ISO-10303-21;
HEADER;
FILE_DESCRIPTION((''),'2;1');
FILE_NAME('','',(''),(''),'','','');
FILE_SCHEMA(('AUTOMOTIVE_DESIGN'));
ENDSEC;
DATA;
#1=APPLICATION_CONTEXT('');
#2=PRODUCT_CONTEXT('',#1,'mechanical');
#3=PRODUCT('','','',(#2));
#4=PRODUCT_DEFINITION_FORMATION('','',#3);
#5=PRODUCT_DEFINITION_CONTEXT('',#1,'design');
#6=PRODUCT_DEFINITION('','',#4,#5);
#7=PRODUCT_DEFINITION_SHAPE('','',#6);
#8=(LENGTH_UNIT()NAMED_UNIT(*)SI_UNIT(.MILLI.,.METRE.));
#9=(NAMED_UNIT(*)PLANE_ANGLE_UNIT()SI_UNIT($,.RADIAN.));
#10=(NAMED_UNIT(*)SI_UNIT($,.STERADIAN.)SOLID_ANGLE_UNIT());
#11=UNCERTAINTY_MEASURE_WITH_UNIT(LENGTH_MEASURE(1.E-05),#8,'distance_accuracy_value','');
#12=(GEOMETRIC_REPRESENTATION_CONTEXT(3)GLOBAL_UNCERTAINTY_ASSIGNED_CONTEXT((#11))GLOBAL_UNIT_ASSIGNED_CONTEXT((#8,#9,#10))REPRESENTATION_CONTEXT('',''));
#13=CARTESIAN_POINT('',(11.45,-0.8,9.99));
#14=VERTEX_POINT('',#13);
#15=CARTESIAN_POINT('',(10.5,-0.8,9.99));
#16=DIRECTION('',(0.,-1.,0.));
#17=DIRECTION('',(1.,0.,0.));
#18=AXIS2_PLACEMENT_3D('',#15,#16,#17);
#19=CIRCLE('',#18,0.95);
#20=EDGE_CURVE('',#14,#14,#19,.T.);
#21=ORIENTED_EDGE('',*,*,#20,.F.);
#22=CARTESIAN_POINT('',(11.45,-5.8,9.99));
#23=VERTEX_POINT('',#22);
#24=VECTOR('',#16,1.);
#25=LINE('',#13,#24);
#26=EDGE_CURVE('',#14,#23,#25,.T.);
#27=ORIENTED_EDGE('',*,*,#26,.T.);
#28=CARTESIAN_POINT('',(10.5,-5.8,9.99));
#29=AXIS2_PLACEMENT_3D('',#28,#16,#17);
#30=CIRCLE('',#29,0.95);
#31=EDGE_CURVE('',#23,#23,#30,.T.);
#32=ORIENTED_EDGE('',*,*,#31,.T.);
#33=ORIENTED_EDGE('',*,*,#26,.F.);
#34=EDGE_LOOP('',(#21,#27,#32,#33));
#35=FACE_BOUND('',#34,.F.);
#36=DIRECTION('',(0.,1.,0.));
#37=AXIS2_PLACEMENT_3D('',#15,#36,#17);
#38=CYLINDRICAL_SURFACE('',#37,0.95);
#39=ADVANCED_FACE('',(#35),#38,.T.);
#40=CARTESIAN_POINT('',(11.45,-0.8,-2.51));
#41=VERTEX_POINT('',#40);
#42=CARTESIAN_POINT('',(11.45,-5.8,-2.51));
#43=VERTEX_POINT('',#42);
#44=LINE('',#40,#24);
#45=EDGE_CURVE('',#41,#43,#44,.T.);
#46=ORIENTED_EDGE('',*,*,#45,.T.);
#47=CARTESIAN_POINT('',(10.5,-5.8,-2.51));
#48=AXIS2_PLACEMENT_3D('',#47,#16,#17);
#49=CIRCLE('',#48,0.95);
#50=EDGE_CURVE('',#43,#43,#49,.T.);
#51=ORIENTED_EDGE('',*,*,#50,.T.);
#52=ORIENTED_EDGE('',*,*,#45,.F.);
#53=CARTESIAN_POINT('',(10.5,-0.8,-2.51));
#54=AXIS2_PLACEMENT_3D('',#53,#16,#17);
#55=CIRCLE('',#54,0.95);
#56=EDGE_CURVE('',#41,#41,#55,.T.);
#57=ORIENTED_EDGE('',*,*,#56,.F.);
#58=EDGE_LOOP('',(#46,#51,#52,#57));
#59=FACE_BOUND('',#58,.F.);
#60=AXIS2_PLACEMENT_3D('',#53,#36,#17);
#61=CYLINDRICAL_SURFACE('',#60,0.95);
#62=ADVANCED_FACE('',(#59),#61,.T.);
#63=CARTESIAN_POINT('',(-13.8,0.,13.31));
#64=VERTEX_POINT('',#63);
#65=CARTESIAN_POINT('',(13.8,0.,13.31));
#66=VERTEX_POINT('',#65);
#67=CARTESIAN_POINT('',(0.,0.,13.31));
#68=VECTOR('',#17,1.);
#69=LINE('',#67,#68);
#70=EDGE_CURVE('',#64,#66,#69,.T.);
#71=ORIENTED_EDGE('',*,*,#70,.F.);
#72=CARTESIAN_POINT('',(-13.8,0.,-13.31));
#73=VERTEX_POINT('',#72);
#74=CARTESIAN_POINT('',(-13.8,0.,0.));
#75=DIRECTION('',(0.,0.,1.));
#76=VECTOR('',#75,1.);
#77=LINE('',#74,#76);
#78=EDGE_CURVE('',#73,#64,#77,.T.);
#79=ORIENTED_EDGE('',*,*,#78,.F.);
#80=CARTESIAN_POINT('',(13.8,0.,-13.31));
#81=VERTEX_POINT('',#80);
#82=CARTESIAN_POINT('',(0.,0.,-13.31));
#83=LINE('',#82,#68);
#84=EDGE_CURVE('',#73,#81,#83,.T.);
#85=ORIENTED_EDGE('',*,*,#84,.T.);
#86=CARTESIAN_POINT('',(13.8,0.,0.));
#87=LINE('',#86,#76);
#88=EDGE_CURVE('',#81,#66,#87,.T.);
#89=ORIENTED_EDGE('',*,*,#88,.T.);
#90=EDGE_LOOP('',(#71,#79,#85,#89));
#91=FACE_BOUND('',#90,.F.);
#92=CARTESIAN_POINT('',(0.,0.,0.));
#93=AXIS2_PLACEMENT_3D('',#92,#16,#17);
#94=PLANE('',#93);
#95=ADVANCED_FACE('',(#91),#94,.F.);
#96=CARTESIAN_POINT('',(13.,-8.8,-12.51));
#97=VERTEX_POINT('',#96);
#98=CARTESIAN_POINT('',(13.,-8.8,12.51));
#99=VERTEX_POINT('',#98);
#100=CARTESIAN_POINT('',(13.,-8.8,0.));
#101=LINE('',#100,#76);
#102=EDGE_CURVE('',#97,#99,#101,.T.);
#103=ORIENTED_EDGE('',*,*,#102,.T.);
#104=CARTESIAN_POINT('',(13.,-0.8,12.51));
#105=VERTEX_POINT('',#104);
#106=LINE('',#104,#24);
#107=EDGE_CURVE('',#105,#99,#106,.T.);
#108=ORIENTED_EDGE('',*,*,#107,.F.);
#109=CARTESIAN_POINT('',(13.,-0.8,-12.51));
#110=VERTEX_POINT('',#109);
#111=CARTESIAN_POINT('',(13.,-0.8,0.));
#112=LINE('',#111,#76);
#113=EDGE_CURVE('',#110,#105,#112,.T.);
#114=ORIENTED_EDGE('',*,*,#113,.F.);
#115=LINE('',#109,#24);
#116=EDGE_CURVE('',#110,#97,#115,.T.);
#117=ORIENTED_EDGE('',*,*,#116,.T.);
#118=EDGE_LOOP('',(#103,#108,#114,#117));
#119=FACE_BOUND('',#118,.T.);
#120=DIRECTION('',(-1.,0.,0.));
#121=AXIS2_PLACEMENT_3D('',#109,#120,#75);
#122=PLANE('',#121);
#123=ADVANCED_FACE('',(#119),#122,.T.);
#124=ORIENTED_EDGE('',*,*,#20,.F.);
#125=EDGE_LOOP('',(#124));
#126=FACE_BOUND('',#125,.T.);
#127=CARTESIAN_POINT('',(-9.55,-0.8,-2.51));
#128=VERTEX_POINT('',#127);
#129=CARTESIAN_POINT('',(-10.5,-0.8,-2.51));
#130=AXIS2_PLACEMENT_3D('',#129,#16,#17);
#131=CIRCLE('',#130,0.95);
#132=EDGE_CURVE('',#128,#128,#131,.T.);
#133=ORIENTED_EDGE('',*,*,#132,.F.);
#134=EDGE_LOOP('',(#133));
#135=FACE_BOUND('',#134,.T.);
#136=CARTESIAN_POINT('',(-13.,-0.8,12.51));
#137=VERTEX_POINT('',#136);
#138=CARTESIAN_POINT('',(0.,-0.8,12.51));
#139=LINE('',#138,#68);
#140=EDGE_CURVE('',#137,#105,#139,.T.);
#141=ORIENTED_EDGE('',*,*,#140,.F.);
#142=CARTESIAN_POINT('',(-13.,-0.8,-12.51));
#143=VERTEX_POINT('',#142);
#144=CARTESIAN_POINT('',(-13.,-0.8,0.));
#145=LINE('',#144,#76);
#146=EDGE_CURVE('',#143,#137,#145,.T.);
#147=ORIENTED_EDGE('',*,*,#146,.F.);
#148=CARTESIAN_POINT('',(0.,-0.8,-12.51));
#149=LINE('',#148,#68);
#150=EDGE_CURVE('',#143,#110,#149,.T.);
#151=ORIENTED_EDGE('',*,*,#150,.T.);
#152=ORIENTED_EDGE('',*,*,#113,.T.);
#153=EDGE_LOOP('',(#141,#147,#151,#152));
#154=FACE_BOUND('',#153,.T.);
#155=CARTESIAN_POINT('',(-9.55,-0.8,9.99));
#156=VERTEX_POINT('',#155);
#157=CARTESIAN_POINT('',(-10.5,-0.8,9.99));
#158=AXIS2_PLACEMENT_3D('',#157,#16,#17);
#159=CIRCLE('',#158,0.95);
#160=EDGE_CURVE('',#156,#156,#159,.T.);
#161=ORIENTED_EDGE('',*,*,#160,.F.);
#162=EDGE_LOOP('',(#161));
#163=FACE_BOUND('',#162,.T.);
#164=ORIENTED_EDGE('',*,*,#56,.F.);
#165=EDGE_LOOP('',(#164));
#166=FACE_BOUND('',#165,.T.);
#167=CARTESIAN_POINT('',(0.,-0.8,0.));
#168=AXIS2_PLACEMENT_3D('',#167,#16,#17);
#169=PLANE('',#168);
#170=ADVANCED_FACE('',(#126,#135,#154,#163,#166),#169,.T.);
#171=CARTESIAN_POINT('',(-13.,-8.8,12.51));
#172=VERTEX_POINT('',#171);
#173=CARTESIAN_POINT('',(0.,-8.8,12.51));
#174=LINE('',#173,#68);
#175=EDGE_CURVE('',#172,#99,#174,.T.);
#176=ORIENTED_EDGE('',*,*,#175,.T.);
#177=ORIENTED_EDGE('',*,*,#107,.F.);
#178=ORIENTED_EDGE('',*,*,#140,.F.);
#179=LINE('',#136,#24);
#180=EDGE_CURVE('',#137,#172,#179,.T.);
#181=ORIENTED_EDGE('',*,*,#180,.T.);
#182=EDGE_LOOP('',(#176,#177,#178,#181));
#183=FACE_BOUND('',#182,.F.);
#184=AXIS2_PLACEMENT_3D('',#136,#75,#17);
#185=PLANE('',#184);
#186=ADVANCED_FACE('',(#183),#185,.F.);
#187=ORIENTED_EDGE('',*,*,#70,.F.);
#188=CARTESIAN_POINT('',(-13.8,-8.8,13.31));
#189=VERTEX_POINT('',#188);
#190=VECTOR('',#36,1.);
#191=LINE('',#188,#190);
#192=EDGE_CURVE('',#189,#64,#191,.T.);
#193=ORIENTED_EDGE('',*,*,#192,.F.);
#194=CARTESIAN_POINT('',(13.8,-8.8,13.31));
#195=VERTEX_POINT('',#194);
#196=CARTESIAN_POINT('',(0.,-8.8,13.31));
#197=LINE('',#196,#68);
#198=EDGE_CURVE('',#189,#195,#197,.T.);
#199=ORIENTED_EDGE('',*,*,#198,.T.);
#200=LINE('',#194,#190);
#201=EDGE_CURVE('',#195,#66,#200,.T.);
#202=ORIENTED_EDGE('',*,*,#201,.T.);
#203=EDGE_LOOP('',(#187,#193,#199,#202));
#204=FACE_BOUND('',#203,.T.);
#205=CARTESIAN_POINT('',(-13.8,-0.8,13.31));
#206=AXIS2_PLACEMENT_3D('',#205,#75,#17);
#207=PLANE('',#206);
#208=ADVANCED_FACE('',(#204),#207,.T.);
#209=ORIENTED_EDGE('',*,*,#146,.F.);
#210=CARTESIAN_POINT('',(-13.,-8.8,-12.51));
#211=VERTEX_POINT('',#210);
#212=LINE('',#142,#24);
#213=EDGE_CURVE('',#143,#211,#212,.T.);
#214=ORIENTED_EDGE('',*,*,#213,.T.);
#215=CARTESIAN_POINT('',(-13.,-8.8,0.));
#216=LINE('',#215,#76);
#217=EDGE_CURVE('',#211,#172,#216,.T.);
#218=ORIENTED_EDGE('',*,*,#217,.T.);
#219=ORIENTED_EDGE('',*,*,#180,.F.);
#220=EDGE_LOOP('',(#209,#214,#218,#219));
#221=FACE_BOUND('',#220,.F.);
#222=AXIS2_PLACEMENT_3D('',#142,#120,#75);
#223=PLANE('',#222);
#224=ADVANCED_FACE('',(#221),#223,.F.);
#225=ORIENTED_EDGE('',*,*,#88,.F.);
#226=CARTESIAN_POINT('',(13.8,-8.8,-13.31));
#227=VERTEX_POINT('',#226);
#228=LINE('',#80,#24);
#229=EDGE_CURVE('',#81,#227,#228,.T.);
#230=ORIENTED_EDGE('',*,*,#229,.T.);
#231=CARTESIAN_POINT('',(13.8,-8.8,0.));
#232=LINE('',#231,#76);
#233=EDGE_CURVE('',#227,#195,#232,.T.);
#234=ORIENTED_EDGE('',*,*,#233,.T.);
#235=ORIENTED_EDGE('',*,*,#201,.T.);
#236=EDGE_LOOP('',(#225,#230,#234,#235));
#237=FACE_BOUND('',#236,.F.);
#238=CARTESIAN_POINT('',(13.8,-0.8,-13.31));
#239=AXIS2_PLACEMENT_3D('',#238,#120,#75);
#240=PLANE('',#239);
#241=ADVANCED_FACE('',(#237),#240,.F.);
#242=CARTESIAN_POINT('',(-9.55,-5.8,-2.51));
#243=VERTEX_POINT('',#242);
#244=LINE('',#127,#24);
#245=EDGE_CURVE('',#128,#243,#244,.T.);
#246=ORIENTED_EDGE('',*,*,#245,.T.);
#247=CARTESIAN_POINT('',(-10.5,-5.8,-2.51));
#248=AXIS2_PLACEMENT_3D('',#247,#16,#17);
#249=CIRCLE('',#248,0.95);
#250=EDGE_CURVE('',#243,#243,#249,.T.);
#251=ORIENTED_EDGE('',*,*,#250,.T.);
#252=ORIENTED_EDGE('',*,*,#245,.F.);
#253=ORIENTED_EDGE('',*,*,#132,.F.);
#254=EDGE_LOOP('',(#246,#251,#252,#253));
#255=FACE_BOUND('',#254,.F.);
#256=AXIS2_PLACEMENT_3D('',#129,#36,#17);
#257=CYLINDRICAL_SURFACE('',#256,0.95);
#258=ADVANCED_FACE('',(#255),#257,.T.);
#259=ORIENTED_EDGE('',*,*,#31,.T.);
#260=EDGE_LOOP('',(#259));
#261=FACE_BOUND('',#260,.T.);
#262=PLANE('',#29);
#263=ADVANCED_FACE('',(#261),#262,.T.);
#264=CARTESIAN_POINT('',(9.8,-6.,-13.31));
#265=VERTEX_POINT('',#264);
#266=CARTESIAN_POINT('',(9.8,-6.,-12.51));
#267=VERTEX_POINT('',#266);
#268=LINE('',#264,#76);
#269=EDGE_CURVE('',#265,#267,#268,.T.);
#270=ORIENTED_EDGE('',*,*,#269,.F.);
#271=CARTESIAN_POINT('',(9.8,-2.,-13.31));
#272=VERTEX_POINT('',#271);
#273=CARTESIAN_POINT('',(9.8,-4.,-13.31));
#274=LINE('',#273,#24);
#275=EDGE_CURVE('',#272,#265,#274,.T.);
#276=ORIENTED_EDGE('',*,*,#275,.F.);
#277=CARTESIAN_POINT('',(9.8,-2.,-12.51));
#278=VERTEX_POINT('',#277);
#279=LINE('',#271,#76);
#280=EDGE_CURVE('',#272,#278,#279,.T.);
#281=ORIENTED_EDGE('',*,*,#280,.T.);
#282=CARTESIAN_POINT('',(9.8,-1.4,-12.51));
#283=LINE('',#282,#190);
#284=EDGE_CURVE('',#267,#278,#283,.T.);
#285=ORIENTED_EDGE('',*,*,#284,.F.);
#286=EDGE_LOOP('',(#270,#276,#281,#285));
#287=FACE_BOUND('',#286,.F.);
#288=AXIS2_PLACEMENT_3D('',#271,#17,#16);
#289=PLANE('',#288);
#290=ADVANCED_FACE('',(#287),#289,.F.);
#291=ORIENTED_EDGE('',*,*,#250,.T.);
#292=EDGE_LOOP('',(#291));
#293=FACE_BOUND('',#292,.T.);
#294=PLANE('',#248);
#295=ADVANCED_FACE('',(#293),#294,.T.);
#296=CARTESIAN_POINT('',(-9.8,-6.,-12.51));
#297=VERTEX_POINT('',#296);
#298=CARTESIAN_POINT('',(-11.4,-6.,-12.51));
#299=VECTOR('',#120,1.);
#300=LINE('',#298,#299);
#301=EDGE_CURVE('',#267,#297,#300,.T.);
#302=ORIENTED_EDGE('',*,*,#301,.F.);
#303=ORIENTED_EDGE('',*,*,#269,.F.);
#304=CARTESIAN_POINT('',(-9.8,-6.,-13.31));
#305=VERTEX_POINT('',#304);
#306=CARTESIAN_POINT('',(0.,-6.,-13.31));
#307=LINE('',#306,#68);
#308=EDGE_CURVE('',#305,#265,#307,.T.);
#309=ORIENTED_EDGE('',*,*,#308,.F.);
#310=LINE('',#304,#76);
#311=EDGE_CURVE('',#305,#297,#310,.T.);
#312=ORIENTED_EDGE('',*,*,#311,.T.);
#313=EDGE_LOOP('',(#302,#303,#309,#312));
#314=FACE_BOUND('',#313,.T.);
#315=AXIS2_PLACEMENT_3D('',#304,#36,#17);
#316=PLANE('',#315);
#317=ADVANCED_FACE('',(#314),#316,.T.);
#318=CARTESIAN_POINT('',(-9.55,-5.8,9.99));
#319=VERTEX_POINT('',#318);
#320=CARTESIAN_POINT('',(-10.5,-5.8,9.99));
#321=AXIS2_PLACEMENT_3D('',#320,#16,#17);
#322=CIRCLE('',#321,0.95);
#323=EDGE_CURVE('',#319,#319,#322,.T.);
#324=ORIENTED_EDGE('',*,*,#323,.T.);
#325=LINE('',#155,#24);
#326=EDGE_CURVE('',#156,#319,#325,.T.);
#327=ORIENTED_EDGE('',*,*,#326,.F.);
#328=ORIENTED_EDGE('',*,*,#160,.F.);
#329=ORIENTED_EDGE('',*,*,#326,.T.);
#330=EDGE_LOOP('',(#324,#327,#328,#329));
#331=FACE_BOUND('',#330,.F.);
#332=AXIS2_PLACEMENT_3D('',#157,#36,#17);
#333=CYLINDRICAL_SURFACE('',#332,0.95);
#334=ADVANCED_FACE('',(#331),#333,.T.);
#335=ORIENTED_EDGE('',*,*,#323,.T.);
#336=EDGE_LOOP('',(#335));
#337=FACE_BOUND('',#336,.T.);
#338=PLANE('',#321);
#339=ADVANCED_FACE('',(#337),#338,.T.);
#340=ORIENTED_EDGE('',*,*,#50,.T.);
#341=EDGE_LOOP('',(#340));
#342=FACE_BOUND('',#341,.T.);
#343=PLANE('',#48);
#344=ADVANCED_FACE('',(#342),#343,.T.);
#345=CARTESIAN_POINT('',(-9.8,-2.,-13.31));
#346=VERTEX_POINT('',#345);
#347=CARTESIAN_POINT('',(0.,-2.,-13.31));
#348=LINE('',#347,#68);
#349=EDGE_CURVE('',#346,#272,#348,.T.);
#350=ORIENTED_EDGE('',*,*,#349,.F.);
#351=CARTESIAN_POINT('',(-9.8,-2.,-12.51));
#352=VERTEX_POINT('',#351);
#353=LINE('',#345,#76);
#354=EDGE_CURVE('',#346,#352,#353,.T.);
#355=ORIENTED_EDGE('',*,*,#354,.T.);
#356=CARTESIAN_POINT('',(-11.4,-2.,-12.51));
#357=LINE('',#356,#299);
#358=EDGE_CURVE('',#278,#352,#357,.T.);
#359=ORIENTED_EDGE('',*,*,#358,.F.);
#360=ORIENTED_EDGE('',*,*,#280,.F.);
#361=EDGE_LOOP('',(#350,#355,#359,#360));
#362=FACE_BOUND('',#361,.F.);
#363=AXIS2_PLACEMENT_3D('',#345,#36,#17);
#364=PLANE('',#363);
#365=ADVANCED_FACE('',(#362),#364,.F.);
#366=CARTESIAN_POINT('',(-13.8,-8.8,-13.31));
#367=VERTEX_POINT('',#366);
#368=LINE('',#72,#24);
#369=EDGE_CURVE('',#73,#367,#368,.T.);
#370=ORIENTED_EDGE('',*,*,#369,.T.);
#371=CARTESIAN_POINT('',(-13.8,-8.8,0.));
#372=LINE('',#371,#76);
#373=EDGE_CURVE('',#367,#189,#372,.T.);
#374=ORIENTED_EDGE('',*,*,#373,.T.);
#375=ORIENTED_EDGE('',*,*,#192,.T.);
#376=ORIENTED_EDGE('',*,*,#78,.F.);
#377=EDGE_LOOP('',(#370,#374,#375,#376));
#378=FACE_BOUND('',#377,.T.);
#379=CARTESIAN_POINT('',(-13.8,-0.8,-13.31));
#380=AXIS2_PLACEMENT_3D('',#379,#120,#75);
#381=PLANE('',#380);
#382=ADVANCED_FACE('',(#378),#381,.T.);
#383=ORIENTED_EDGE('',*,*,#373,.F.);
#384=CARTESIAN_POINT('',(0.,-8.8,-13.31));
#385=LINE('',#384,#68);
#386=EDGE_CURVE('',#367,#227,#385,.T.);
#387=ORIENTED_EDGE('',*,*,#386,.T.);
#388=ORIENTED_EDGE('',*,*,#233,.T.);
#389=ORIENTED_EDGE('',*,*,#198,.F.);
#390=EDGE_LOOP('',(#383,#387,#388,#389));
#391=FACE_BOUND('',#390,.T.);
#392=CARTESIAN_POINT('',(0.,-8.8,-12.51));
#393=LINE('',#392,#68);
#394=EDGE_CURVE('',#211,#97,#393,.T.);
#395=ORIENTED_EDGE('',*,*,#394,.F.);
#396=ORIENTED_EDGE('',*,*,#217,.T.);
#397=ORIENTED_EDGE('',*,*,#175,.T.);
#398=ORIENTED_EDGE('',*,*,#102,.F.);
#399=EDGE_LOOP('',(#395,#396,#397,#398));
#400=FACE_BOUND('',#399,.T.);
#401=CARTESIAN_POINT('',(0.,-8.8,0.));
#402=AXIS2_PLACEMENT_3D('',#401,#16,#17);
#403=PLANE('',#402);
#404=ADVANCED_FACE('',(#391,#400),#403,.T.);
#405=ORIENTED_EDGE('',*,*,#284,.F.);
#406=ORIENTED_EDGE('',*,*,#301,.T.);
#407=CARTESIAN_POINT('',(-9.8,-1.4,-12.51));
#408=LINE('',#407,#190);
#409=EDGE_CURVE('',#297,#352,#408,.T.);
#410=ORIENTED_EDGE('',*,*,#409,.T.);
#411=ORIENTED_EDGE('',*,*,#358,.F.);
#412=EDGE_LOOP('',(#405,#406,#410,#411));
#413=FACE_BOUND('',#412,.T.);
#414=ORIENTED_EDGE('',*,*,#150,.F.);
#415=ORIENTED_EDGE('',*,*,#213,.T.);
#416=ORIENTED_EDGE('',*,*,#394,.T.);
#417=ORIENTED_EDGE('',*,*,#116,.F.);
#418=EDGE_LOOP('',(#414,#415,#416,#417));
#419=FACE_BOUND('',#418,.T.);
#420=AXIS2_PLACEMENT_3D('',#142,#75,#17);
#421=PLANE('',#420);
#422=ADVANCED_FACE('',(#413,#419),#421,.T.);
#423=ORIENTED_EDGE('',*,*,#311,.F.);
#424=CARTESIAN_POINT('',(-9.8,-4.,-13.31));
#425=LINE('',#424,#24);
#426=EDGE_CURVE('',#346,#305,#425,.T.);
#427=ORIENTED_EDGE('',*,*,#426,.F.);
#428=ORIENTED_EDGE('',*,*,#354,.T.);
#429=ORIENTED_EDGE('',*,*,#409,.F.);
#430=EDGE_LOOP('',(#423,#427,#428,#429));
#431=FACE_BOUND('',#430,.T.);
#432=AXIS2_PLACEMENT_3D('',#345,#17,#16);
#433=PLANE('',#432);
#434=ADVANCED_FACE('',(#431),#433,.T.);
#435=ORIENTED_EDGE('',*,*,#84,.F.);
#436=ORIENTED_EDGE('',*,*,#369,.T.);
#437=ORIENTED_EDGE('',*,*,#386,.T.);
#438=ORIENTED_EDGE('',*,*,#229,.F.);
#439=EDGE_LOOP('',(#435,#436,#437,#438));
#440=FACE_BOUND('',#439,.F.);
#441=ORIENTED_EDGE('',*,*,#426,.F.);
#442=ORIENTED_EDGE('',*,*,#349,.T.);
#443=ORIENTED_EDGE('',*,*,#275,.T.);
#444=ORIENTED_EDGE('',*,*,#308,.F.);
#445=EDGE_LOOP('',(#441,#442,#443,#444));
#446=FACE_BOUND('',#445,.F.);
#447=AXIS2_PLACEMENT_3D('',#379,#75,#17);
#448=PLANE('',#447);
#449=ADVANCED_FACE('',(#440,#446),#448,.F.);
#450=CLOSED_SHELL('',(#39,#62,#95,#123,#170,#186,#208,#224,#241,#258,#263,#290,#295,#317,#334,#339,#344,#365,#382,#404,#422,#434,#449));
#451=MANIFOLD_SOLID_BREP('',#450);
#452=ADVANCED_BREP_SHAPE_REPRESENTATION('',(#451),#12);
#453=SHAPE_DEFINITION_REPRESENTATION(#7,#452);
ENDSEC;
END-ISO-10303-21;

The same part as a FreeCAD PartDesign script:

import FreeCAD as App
import Part
import Sketcher
from FreeCAD import Vector


def add_polygon(sketch, points):
    """Adds a closed chain of lines whose ends are joined by coincident constraints."""
    first, n = sketch.GeometryCount, len(points)
    for a, b in zip(points, points[1:] + points[:1]):
        sketch.addGeometry(Part.LineSegment(App.Vector(*a, 0), App.Vector(*b, 0)), False)
    for i in range(n):
        sketch.addConstraint(Sketcher.Constraint("Coincident", first + i, 2, first + (i + 1) % n, 1))

doc = App.newDocument("Part")
body = doc.addObject("PartDesign::Body", "Body")

sketch1 = body.newObject("Sketcher::SketchObject", "Sketch")
sketch1.AttachmentSupport = (doc.getObject("XZ_Plane"), [""])
sketch1.MapMode = "FlatFace"
add_polygon(sketch1, [(-13.8, 13.31), (-13.8, -13.31), (13.8, -13.31), (13.8, 13.31)])
sketch1.addConstraint(Sketcher.Constraint("Vertical", 0))
sketch1.addConstraint(Sketcher.Constraint("Horizontal", 1))
sketch1.addConstraint(Sketcher.Constraint("Vertical", 2))
sketch1.addConstraint(Sketcher.Constraint("Horizontal", 3))
sketch1.addConstraint(Sketcher.Constraint("Symmetric", 0, 2, 2, 2, -1, 1))
sketch1.addConstraint(Sketcher.Constraint("DistanceX", 1, 1, 1, 2, 27.6))
sketch1.addConstraint(Sketcher.Constraint("DistanceY", 0, 2, 0, 1, 26.62))
pad1 = body.newObject("PartDesign::Pad", "Pad")
pad1.Profile = sketch1
pad1.Length = 0.8

sketch2 = body.newObject("Sketcher::SketchObject", "Sketch001")
sketch2.AttachmentSupport = (doc.getObject("XZ_Plane"), [""])
sketch2.MapMode = "FlatFace"
sketch2.AttachmentOffset = App.Placement(Vector(0, 0, 0.8), App.Rotation())
add_polygon(sketch2, [(-13.8, 13.31), (-13.8, -13.31), (13.8, -13.31), (13.8, 13.31)])
add_polygon(sketch2, [(13, -12.51), (-13, -12.51), (-13, 12.51), (13, 12.51)])
sketch2.addConstraint(Sketcher.Constraint("Vertical", 0))
sketch2.addConstraint(Sketcher.Constraint("Horizontal", 1))
sketch2.addConstraint(Sketcher.Constraint("Vertical", 2))
sketch2.addConstraint(Sketcher.Constraint("Horizontal", 3))
sketch2.addConstraint(Sketcher.Constraint("Horizontal", 4))
sketch2.addConstraint(Sketcher.Constraint("Vertical", 5))
sketch2.addConstraint(Sketcher.Constraint("Horizontal", 6))
sketch2.addConstraint(Sketcher.Constraint("Vertical", 7))
sketch2.addConstraint(Sketcher.Constraint("Symmetric", 0, 2, 2, 2, -1, 1))
sketch2.addConstraint(Sketcher.Constraint("Symmetric", 4, 2, 6, 2, -1, 1))
sketch2.addConstraint(Sketcher.Constraint("DistanceX", 4, 2, 4, 1, 26.0))
sketch2.addConstraint(Sketcher.Constraint("DistanceX", 1, 1, 1, 2, 27.6))
sketch2.addConstraint(Sketcher.Constraint("DistanceY", 0, 2, 0, 1, 26.62))
sketch2.addConstraint(Sketcher.Constraint("DistanceY", 5, 1, 5, 2, 25.02))
pad2 = body.newObject("PartDesign::Pad", "Pad001")
pad2.Profile = sketch2
pad2.Length = 8

sketch3 = body.newObject("Sketcher::SketchObject", "Sketch002")
sketch3.AttachmentSupport = (doc.getObject("XZ_Plane"), [""])
sketch3.MapMode = "FlatFace"
sketch3.AttachmentOffset = App.Placement(Vector(0, 0, 0.8), App.Rotation())
sketch3.addGeometry(Part.Circle(Vector(-10.5, 9.99, 0), Vector(0, 0, 1), 0.95), False)
sketch3.addGeometry(Part.Circle(Vector(-10.5, -2.51, 0), Vector(0, 0, 1), 0.95), False)
sketch3.addGeometry(Part.Circle(Vector(10.5, 9.99, 0), Vector(0, 0, 1), 0.95), False)
sketch3.addGeometry(Part.Circle(Vector(10.5, -2.51, 0), Vector(0, 0, 1), 0.95), False)
sketch3.addConstraint(Sketcher.Constraint("Equal", 0, 1))
sketch3.addConstraint(Sketcher.Constraint("Equal", 1, 2))
sketch3.addConstraint(Sketcher.Constraint("Equal", 2, 3))
sketch3.addConstraint(Sketcher.Constraint("Symmetric", 0, 3, 2, 3, -2))
sketch3.addConstraint(Sketcher.Constraint("Symmetric", 1, 3, 3, 3, -2))
sketch3.addConstraint(Sketcher.Constraint("Vertical", 0, 3, 1, 3))
sketch3.addConstraint(Sketcher.Constraint("Diameter", 0, 1.9))
sketch3.addConstraint(Sketcher.Constraint("DistanceX", 0, 3, 2, 3, 21.0))
sketch3.addConstraint(Sketcher.Constraint("DistanceY", 1, 3, 0, 3, 12.5))
sketch3.addConstraint(Sketcher.Constraint("DistanceY", -1, 1, 0, 3, 9.99))
pad3 = body.newObject("PartDesign::Pad", "Pad002")
pad3.Profile = sketch3
pad3.Length = 5

sketch4 = body.newObject("Sketcher::SketchObject", "Sketch003")
sketch4.AttachmentSupport = (doc.getObject("XY_Plane"), [""])
sketch4.MapMode = "FlatFace"
sketch4.AttachmentOffset = App.Placement(Vector(0, 0, -13.31), App.Rotation())
add_polygon(sketch4, [(-9.8, -6), (-9.8, -2), (9.8, -2), (9.8, -6)])
sketch4.addConstraint(Sketcher.Constraint("Vertical", 0))
sketch4.addConstraint(Sketcher.Constraint("Horizontal", 1))
sketch4.addConstraint(Sketcher.Constraint("Vertical", 2))
sketch4.addConstraint(Sketcher.Constraint("Horizontal", 3))
sketch4.addConstraint(Sketcher.Constraint("DistanceY", 0, 1, 0, 2, 4.0))
sketch4.addConstraint(Sketcher.Constraint("DistanceX", 1, 1, 1, 2, 19.6))
sketch4.addConstraint(Sketcher.Constraint("DistanceY", 0, 2, -1, 1, 2.0))
sketch4.addConstraint(Sketcher.Constraint("DistanceX", 0, 2, -1, 1, 9.8))
pocket1 = body.newObject("PartDesign::Pocket", "Pocket")
pocket1.Profile = sketch4
pocket1.Length = 1.7
pocket1.Reversed = True

doc.recompute()
